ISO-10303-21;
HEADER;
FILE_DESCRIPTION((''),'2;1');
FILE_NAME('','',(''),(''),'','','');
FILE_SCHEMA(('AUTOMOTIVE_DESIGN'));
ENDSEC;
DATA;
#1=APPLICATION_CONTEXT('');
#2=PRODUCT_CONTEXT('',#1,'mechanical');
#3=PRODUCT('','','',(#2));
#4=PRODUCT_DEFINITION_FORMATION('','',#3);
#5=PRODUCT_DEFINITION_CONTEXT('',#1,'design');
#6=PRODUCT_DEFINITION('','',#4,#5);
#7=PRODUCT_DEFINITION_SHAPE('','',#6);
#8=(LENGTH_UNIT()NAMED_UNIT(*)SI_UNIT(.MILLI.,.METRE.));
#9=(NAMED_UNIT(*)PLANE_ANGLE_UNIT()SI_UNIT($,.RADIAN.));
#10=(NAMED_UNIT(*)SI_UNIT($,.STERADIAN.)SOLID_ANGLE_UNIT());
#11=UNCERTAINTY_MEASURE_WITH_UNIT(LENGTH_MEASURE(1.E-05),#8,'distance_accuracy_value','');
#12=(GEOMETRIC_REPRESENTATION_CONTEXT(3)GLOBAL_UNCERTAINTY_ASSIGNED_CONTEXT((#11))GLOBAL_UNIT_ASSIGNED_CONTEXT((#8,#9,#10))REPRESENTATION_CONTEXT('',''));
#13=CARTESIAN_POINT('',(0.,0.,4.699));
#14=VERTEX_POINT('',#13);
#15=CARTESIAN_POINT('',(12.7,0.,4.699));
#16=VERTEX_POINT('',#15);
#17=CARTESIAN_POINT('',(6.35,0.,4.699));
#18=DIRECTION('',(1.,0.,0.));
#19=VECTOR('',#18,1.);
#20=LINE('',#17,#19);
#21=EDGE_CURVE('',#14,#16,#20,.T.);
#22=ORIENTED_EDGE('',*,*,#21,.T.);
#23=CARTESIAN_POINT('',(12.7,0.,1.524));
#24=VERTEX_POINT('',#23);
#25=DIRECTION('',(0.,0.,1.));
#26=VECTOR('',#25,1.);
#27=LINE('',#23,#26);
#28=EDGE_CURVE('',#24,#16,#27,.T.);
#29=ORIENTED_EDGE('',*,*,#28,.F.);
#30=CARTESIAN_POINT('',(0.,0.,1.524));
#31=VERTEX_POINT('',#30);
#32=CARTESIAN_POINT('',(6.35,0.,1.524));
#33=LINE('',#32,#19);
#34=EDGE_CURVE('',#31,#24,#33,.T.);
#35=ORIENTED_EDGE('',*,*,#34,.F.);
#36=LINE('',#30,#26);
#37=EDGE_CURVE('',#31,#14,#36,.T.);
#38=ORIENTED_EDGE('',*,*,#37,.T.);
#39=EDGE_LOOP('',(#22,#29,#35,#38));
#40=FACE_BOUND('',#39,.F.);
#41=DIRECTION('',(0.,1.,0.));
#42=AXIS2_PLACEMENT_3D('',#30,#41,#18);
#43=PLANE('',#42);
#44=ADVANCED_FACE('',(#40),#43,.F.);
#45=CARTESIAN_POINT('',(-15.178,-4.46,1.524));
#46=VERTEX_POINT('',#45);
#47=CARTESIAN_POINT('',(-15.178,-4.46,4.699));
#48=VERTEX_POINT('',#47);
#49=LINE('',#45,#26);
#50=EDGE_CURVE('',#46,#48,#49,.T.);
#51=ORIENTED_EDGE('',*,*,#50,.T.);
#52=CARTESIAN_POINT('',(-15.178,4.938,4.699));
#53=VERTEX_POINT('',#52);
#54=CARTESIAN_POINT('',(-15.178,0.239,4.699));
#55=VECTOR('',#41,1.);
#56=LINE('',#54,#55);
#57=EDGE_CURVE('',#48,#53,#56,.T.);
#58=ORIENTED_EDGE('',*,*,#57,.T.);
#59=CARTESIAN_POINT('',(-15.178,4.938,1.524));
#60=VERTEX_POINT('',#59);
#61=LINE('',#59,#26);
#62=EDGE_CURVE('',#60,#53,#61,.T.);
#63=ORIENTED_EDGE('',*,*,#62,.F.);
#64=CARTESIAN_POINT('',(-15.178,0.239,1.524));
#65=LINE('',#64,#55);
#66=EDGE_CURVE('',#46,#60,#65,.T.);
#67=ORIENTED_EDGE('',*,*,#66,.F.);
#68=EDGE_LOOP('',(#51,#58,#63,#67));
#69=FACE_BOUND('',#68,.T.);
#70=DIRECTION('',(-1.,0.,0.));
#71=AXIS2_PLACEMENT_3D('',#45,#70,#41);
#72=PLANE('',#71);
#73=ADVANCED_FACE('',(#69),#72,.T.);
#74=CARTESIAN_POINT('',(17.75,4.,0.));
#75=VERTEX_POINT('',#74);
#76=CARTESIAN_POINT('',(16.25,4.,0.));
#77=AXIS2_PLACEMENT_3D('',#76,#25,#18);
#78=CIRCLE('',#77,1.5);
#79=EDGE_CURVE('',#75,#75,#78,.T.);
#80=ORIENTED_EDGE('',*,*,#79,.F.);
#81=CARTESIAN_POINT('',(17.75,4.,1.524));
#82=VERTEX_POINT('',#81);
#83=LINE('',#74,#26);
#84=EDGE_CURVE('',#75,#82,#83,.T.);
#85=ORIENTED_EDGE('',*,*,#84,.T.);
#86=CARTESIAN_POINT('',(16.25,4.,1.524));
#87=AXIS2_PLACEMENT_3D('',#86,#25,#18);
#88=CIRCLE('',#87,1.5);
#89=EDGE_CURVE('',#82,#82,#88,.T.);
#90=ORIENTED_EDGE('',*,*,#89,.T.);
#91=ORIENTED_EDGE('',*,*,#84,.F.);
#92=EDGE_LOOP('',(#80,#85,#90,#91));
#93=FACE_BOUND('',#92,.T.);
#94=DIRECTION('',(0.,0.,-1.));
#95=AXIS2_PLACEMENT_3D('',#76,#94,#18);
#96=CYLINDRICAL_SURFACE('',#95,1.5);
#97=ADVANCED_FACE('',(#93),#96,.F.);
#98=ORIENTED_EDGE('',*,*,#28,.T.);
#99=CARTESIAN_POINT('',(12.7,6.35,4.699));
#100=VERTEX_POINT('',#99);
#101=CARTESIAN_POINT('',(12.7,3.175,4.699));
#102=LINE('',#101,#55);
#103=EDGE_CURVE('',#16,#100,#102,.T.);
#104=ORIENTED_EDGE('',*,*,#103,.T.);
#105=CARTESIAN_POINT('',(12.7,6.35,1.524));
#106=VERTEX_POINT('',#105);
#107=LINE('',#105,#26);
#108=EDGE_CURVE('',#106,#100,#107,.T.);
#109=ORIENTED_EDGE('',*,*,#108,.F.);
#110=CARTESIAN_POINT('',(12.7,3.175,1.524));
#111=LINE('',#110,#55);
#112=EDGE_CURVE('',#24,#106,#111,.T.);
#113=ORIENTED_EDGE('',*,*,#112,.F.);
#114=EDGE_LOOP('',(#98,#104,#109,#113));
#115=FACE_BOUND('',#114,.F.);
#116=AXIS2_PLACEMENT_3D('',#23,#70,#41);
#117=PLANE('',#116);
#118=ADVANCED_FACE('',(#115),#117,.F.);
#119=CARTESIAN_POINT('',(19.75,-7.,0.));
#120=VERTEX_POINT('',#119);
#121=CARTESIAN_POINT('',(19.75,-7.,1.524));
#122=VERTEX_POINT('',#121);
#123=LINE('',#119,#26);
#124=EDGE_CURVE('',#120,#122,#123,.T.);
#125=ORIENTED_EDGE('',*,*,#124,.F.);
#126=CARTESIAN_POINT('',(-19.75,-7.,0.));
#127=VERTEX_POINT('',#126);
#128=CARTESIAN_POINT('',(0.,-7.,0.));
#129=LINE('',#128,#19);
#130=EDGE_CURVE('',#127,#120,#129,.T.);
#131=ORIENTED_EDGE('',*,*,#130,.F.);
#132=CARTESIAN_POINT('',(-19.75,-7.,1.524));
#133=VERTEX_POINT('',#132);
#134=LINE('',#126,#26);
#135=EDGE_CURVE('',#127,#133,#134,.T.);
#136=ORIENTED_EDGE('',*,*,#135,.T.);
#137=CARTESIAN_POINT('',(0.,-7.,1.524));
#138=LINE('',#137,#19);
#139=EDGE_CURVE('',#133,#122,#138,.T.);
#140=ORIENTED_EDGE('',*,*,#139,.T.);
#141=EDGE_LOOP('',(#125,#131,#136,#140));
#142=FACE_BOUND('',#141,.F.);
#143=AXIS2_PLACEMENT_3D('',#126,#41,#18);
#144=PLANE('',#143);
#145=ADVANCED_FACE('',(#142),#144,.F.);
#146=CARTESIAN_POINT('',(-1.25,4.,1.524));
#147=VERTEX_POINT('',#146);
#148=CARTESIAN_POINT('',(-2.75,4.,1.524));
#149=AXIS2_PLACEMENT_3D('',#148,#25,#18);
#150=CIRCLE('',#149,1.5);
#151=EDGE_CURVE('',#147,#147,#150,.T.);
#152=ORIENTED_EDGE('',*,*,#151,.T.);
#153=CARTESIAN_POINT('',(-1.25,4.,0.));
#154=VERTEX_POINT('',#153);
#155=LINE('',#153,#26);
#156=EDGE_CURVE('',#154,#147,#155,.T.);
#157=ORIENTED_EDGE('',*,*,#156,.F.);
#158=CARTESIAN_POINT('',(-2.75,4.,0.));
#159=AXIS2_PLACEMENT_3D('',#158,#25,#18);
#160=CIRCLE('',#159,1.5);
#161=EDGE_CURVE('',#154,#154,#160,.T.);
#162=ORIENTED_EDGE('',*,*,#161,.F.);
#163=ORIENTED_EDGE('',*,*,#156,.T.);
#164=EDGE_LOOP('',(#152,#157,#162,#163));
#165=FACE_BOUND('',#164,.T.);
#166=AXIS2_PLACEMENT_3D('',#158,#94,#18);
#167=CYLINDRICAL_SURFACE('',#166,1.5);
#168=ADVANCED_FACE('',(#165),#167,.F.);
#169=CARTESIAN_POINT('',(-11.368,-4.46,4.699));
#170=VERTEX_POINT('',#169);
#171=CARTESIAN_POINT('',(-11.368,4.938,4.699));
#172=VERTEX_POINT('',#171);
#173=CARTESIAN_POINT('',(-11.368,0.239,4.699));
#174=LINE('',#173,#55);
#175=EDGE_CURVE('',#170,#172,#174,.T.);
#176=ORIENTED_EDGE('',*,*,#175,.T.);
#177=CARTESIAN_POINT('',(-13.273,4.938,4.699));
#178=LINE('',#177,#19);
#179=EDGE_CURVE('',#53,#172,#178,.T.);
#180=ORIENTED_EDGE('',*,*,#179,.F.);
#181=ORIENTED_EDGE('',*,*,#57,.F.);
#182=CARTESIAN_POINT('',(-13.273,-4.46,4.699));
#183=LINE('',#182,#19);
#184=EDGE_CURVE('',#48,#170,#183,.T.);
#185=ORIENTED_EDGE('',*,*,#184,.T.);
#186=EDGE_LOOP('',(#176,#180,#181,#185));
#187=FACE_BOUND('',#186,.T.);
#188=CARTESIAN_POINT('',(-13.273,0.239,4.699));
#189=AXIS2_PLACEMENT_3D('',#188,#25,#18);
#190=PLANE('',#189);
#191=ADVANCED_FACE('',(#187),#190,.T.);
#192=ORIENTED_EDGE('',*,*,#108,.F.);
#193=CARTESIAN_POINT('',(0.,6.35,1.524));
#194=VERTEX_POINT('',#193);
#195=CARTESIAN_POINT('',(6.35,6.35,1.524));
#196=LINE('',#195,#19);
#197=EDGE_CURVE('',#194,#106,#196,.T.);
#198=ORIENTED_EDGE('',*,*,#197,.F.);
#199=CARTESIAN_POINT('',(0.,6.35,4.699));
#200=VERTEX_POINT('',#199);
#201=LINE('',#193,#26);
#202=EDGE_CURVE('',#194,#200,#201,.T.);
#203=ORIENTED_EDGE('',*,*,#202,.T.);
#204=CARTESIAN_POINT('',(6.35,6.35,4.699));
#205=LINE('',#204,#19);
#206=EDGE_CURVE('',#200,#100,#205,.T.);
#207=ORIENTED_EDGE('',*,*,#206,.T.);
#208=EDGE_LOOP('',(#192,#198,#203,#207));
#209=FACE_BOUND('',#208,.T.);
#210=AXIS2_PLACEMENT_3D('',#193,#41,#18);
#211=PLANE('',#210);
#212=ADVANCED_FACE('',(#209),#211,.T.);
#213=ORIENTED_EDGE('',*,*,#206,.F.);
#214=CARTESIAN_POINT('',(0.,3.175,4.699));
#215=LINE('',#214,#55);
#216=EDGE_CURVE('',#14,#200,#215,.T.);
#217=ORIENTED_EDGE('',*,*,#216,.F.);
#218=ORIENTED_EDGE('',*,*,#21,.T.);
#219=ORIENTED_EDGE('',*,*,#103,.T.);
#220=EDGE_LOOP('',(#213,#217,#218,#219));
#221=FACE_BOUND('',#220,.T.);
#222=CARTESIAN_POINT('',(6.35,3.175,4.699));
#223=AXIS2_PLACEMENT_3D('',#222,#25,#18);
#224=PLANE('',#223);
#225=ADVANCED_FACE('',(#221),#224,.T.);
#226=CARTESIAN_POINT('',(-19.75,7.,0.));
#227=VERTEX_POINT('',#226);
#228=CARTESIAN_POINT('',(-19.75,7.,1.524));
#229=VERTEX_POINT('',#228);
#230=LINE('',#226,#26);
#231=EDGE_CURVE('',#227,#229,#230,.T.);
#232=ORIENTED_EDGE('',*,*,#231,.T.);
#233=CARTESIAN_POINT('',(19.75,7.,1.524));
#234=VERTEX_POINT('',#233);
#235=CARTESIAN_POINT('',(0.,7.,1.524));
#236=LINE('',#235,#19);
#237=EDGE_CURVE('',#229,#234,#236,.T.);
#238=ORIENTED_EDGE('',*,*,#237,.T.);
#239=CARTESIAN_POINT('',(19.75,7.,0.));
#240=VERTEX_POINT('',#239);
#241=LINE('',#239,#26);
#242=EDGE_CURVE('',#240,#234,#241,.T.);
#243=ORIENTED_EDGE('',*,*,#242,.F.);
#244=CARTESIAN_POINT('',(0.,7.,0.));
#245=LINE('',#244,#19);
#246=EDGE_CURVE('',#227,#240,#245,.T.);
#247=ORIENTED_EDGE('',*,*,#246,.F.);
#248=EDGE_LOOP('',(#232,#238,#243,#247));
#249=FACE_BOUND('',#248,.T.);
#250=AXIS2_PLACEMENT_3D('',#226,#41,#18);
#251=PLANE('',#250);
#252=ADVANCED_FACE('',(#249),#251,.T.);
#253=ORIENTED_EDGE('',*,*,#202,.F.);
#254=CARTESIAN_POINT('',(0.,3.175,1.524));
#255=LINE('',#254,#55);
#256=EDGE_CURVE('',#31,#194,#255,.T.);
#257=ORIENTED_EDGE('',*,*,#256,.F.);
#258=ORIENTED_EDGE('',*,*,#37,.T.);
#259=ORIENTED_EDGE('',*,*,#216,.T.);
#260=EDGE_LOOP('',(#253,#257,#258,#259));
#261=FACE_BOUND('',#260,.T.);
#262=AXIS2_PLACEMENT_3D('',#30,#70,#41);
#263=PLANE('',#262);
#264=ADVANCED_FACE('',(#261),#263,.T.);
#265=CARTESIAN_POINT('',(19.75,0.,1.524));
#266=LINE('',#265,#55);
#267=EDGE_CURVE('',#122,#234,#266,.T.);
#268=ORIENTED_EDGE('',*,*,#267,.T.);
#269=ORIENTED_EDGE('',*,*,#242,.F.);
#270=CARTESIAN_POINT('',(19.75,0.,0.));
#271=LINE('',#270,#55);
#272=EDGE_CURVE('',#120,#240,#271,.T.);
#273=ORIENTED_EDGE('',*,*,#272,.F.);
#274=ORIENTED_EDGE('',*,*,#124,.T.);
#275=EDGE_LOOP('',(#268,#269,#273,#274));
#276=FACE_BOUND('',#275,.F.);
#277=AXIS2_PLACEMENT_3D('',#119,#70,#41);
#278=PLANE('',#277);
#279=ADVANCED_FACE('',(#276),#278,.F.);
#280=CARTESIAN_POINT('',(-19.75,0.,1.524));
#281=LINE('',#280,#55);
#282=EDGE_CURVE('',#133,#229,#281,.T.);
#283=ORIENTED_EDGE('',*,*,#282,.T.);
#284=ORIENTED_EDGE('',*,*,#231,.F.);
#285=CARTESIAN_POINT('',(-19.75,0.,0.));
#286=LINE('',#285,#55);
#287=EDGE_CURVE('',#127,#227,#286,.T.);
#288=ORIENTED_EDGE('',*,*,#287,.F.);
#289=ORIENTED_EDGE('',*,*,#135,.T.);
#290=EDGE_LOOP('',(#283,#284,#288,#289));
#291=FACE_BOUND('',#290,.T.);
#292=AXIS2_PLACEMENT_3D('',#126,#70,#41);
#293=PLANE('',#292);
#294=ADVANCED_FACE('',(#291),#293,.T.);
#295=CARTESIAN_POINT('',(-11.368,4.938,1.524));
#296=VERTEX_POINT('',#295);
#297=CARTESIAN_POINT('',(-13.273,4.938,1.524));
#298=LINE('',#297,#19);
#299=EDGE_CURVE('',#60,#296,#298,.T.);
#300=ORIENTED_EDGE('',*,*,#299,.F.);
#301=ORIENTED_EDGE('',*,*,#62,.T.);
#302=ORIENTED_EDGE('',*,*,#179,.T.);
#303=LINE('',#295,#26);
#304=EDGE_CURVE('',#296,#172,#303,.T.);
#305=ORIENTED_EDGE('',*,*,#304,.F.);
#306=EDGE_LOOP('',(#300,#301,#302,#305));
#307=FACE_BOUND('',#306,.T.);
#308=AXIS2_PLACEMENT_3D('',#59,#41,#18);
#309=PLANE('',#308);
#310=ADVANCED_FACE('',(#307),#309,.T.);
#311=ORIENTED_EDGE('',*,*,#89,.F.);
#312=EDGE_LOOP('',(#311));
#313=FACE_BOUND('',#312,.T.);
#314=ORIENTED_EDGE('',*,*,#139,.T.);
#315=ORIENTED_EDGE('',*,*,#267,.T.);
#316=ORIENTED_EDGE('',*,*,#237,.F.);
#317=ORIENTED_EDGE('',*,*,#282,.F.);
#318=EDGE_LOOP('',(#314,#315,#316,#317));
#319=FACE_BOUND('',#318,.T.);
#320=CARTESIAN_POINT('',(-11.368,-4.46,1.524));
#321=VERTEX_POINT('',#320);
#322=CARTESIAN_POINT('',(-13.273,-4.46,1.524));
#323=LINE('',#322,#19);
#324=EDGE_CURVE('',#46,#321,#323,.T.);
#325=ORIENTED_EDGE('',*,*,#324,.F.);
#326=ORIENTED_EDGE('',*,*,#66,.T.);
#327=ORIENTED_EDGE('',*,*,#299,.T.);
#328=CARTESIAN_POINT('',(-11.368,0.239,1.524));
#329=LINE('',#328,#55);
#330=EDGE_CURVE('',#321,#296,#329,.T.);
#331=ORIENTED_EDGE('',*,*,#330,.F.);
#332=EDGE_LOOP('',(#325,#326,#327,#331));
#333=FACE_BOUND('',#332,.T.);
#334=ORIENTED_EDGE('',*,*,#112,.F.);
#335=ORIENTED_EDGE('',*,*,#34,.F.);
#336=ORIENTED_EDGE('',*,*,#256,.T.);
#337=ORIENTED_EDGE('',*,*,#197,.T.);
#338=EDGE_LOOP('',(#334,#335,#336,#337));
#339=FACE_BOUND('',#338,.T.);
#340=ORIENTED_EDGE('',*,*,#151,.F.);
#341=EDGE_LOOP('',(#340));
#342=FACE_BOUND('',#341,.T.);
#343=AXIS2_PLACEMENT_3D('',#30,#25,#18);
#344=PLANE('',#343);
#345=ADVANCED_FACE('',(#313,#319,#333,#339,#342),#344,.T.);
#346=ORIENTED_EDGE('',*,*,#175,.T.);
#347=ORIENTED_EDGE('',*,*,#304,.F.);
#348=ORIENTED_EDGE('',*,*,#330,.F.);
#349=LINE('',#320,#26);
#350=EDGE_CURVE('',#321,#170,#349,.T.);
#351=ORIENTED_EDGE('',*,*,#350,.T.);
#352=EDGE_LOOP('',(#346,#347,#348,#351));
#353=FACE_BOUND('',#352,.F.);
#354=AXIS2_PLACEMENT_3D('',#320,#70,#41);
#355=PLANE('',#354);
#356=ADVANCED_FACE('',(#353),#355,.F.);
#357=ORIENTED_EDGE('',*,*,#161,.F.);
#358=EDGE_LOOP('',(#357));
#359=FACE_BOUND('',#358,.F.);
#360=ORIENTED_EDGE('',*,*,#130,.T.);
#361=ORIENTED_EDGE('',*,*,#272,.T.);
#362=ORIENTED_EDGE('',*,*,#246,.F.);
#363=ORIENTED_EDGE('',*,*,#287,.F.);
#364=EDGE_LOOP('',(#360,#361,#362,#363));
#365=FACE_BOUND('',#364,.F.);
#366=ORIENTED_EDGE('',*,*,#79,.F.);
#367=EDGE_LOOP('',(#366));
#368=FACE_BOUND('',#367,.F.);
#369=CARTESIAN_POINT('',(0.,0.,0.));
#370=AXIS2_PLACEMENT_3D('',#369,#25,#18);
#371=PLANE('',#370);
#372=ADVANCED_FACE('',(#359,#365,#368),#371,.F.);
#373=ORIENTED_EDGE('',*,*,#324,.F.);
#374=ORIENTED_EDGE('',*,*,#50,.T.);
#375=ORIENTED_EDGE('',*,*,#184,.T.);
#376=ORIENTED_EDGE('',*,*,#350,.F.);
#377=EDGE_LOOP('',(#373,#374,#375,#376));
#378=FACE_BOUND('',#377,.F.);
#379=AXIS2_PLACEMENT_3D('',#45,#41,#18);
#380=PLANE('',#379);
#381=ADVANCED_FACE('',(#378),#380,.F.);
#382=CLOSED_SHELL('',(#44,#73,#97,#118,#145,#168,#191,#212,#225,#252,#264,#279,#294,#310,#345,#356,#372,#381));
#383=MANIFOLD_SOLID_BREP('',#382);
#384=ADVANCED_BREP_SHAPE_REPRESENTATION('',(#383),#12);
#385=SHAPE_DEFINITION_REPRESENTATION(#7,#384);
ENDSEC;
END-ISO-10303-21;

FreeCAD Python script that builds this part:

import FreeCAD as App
import Part
import Sketcher
Q = App.Units.Quantity

doc = App.newDocument("Part")
body = doc.addObject("PartDesign::Body", "Body")

# Sketch on XY plane
sketch1 = body.newObject("Sketcher::SketchObject", "Sketch")
sketch1.AttachmentSupport = (doc.getObject("XY_Plane"), [""])
sketch1.MapMode = "FlatFace"
sketch1.addGeometry([
    Part.LineSegment(App.Vector(-19.75, 7, 0), App.Vector(-19.75, -7, 0)),  # 0
    Part.LineSegment(App.Vector(-19.75, -7, 0), App.Vector(19.75, -7, 0)),  # 1
    Part.LineSegment(App.Vector(19.75, -7, 0), App.Vector(19.75, 7, 0)),  # 2
    Part.LineSegment(App.Vector(19.75, 7, 0), App.Vector(-19.75, 7, 0)),  # 3
    Part.Circle(App.Vector(-2.75, 4, 0), App.Vector(0, 0, 1), 1.5),  # 4
    Part.Circle(App.Vector(16.25, 4, 0), App.Vector(0, 0, 1), 1.5),  # 5
], False)
sketch1.addConstraint([
    Sketcher.Constraint("Coincident", 0, 2, 1, 1),
    Sketcher.Constraint("Coincident", 1, 2, 2, 1),
    Sketcher.Constraint("Coincident", 2, 2, 3, 1),
    Sketcher.Constraint("Coincident", 3, 2, 0, 1),
    Sketcher.Constraint("Vertical", 0),
    Sketcher.Constraint("Horizontal", 1),
    Sketcher.Constraint("Vertical", 2),
    Sketcher.Constraint("Horizontal", 3),
    Sketcher.Constraint("Equal", 4, 5),
    Sketcher.Constraint("Symmetric", 0, 2, 2, 2, -1, 1),
    Sketcher.Constraint("Horizontal", 4, 3, 5, 3),
    Sketcher.Constraint("Diameter", 4, Q("3 mm")),
    Sketcher.Constraint("DistanceX", 1, 1, 1, 2, Q("39.5 mm")),
    Sketcher.Constraint("DistanceY", 0, 2, 0, 1, Q("14 mm")),
    Sketcher.Constraint("DistanceX", 4, 3, -1, 1, Q("2.75 mm")),
    Sketcher.Constraint("DistanceY", -1, 1, 4, 3, Q("4 mm")),
    Sketcher.Constraint("DistanceX", -1, 1, 5, 3, Q("16.25 mm")),
])
pad1 = body.newObject("PartDesign::Pad", "Pad")
pad1.Profile = sketch1
pad1.Length = Q("0.06 in")

# Sketch on XY plane
sketch2 = body.newObject("Sketcher::SketchObject", "Sketch001")
sketch2.AttachmentSupport = (doc.getObject("XY_Plane"), [""])
sketch2.MapMode = "FlatFace"
sketch2.AttachmentOffset = App.Placement(App.Vector(0, 0, 0.06 * 25.4), App.Rotation())
sketch2.addGeometry([
    Part.LineSegment(App.Vector(-15.178, 4.938, 0), App.Vector(-15.178, -4.46, 0)),  # 0
    Part.LineSegment(App.Vector(-15.178, -4.46, 0), App.Vector(-11.368, -4.46, 0)),  # 1
    Part.LineSegment(App.Vector(-11.368, -4.46, 0), App.Vector(-11.368, 4.938, 0)),  # 2
    Part.LineSegment(App.Vector(-11.368, 4.938, 0), App.Vector(-15.178, 4.938, 0)),  # 3
    Part.LineSegment(App.Vector(0, 6.35, 0), App.Vector(0, 0, 0)),  # 4
    Part.LineSegment(App.Vector(0, 0, 0), App.Vector(12.7, 0, 0)),  # 5
    Part.LineSegment(App.Vector(12.7, 0, 0), App.Vector(12.7, 6.35, 0)),  # 6
    Part.LineSegment(App.Vector(12.7, 6.35, 0), App.Vector(0, 6.35, 0)),  # 7
], False)
sketch2.addConstraint([
    Sketcher.Constraint("Coincident", 0, 2, 1, 1),
    Sketcher.Constraint("Coincident", 1, 2, 2, 1),
    Sketcher.Constraint("Coincident", 2, 2, 3, 1),
    Sketcher.Constraint("Coincident", 3, 2, 0, 1),
    Sketcher.Constraint("Coincident", 4, 2, 5, 1),
    Sketcher.Constraint("Coincident", 5, 2, 6, 1),
    Sketcher.Constraint("Coincident", 6, 2, 7, 1),
    Sketcher.Constraint("Coincident", 7, 2, 4, 1),
    Sketcher.Constraint("Vertical", 0),
    Sketcher.Constraint("Horizontal", 1),
    Sketcher.Constraint("Vertical", 2),
    Sketcher.Constraint("Horizontal", 3),
    Sketcher.Constraint("Vertical", 4),
    Sketcher.Constraint("Horizontal", 5),
    Sketcher.Constraint("Vertical", 6),
    Sketcher.Constraint("Horizontal", 7),
    Sketcher.Constraint("Coincident", 4, 2, -1, 1),
    Sketcher.Constraint("DistanceX", 5, 1, 5, 2, Q("0.5 in")),
    Sketcher.Constraint("DistanceX", 1, 1, 1, 2, Q("0.15 in")),
    Sketcher.Constraint("DistanceY", 0, 2, 0, 1, Q("0.37 in")),
    Sketcher.Constraint("DistanceY", 4, 2, 4, 1, Q("0.25 in")),
    Sketcher.Constraint("DistanceX", 0, 2, -1, 1, Q("15.178 mm")),
    Sketcher.Constraint("DistanceY", 0, 2, -1, 1, Q("4.46 mm")),
])
pad2 = body.newObject("PartDesign::Pad", "Pad001")
pad2.Profile = sketch2
pad2.Length = Q("0.125 in")

doc.recompute()
